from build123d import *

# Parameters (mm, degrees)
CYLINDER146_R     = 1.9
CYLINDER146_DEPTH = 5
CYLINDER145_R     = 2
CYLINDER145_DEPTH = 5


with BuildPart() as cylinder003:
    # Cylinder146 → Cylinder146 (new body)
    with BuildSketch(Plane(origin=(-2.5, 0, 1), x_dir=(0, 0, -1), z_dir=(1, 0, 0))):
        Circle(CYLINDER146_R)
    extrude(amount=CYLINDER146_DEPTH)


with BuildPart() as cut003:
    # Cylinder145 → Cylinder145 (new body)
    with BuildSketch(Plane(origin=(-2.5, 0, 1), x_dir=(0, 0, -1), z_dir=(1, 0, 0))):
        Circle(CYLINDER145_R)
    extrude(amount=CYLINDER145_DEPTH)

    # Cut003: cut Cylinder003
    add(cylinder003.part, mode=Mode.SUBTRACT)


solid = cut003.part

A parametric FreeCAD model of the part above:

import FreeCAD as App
import Part
import Sketcher
from FreeCAD import Vector

doc = App.newDocument("Part")
body = doc.addObject("PartDesign::Body", "Body")

# Sketch on YZ plane
sketch1 = body.newObject("Sketcher::SketchObject", "Sketch")
sketch1.AttachmentSupport = (doc.getObject("YZ_Plane"), [""])
sketch1.MapMode = "FlatFace"
sketch1.AttachmentOffset = App.Placement(Vector(0, 0, -2.5), App.Rotation())
sketch1.addGeometry(Part.Circle(Vector(0, 1, 0), Vector(0, 0, 1), 1.9), False)
sketch1.addConstraint([
    Sketcher.Constraint("PointOnObject", 0, 3, -2),
    Sketcher.Constraint("Diameter", 0, 3.8),
    Sketcher.Constraint("DistanceY", -1, 1, 0, 3, 1.0),
])
pad1 = body.newObject("PartDesign::Pad", "Pad")
pad1.Profile = sketch1
pad1.Length = 5
body2 = doc.addObject("PartDesign::Body", "Body001")

# Sketch on YZ plane
sketch2 = body2.newObject("Sketcher::SketchObject", "Sketch001")
sketch2.AttachmentSupport = (doc.getObject("YZ_Plane001"), [""])
sketch2.MapMode = "FlatFace"
sketch2.AttachmentOffset = App.Placement(Vector(0, 0, -2.5), App.Rotation())
sketch2.addGeometry(Part.Circle(Vector(0, 1, 0), Vector(0, 0, 1), 2), False)
sketch2.addConstraint([
    Sketcher.Constraint("PointOnObject", 0, 3, -2),
    Sketcher.Constraint("Diameter", 0, 4.0),
    Sketcher.Constraint("DistanceY", -1, 1, 0, 3, 1.0),
])
pad2 = body2.newObject("PartDesign::Pad", "Pad001")
pad2.Profile = sketch2
pad2.Length = 5
doc.recompute()

boolean = body2.newObject("PartDesign::Boolean", "Boolean")
boolean.Type = "Cut"
boolean.addObjects([body])

doc.recompute()
